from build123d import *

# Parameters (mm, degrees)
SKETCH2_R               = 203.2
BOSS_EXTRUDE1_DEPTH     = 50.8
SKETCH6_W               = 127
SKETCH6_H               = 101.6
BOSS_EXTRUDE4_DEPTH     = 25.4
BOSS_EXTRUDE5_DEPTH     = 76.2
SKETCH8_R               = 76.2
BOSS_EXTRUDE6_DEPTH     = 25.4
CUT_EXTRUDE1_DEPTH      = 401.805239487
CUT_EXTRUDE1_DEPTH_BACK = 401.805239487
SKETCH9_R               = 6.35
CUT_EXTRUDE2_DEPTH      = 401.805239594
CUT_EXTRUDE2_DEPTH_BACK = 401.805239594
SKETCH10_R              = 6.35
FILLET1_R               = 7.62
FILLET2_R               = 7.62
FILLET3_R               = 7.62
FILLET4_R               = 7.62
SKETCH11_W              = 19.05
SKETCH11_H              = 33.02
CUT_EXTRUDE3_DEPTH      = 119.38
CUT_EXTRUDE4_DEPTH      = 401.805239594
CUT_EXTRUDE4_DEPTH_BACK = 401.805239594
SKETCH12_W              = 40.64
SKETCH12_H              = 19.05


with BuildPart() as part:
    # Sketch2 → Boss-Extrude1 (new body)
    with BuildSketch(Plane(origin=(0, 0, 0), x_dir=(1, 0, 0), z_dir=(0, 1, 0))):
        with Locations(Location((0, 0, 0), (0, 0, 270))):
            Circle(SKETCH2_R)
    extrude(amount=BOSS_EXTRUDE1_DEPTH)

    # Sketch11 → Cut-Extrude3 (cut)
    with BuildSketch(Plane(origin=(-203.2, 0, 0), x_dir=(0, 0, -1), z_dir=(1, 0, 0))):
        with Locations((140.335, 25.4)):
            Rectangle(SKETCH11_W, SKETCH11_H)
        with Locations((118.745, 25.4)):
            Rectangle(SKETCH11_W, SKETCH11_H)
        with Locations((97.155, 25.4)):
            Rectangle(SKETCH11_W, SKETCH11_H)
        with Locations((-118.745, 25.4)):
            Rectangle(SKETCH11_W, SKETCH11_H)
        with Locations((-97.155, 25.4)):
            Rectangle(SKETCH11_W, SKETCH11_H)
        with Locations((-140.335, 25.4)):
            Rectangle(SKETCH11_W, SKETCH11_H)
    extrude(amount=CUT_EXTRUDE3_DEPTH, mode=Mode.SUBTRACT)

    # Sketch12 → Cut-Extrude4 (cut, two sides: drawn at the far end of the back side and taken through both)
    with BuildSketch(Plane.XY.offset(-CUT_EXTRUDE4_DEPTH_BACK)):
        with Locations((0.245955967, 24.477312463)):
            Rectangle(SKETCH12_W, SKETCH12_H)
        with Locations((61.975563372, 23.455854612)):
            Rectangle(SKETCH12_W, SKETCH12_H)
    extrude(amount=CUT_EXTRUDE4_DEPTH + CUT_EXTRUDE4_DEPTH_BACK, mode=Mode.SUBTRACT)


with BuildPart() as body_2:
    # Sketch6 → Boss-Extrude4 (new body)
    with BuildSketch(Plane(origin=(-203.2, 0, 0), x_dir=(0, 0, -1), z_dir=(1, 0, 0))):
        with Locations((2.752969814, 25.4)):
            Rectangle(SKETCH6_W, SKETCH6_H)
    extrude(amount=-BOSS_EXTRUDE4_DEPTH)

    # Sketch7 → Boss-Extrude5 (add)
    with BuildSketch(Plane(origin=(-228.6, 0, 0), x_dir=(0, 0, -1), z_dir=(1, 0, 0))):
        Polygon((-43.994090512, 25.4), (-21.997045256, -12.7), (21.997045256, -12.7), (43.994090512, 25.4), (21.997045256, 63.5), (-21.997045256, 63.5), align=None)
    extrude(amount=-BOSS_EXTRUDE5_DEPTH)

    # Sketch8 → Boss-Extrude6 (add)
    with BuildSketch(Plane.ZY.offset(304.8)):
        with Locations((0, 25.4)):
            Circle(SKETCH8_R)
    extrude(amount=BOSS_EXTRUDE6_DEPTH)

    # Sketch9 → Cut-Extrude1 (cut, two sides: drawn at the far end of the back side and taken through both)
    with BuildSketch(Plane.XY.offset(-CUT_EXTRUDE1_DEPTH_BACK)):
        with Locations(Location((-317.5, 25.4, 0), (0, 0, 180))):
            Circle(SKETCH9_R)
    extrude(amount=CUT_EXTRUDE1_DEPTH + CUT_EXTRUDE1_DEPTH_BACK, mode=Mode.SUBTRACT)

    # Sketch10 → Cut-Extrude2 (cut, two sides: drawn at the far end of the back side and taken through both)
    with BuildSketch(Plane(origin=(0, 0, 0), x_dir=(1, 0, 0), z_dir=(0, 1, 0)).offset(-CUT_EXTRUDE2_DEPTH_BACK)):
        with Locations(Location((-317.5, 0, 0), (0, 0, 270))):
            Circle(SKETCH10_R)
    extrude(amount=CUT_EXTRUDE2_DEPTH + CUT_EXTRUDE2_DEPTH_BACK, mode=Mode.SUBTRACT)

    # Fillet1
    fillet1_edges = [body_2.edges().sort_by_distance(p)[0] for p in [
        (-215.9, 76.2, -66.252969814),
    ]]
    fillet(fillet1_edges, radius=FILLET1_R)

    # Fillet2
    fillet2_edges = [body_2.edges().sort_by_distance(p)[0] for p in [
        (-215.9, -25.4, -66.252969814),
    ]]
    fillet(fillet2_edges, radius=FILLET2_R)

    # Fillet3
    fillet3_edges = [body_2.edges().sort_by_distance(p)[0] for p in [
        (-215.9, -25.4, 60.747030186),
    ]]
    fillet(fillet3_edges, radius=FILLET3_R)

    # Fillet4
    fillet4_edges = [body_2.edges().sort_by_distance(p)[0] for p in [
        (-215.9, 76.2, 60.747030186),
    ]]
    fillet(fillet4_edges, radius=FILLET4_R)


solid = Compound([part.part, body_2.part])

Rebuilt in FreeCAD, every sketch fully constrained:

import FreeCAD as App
import Part
import Sketcher
Q = App.Units.Quantity


def edges_at(feature, points):
    """Names of the edges that pass closest to the given points."""
    edges = feature.Shape.Edges
    near = lambda p: min(range(len(edges)), key=lambda i: edges[i].distToShape(Part.Vertex(*p))[0])
    return sorted({f"Edge{near(p) + 1}" for p in points})

doc = App.newDocument("Part")
body = doc.addObject("PartDesign::Body", "Body")

sketch1 = body.newObject("Sketcher::SketchObject", "Sketch")
sketch1.AttachmentSupport = (doc.getObject("XZ_Plane"), [""])
sketch1.MapMode = "FlatFace"
sketch1.addGeometry(Part.Circle(App.Vector(0, 0, 0), App.Vector(0, 0, 1), 203), False)
sketch1.addConstraint(Sketcher.Constraint("Coincident", 0, 3, -1, 1))
sketch1.addConstraint(Sketcher.Constraint("Diameter", 0, Q("16 in")))
pad1 = body.newObject("PartDesign::Pad", "Pad")
pad1.Profile = sketch1
pad1.Length = Q("2 in")
pad1.Reversed = True

sketch2 = body.newObject("Sketcher::SketchObject", "Sketch001")
sketch2.AttachmentSupport = (doc.getObject("YZ_Plane"), [""])
sketch2.MapMode = "FlatFace"
sketch2.AttachmentOffset = App.Placement(App.Vector(0, 0, -8 * 25.4), App.Rotation())
sketch2.addGeometry(Part.LineSegment(App.Vector(42, -131, 0), App.Vector(9, -131, 0)), False)
sketch2.addGeometry(Part.LineSegment(App.Vector(9, -131, 0), App.Vector(9, -150, 0)), False)
sketch2.addGeometry(Part.LineSegment(App.Vector(9, -150, 0), App.Vector(42, -150, 0)), False)
sketch2.addGeometry(Part.LineSegment(App.Vector(42, -150, 0), App.Vector(42, -131, 0)), False)
sketch2.addGeometry(Part.LineSegment(App.Vector(42, -109, 0), App.Vector(9, -109, 0)), False)
sketch2.addGeometry(Part.LineSegment(App.Vector(9, -109, 0), App.Vector(9, -128, 0)), False)
sketch2.addGeometry(Part.LineSegment(App.Vector(9, -128, 0), App.Vector(42, -128, 0)), False)
sketch2.addGeometry(Part.LineSegment(App.Vector(42, -128, 0), App.Vector(42, -109, 0)), False)
sketch2.addGeometry(Part.LineSegment(App.Vector(42, -88, 0), App.Vector(9, -88, 0)), False)
sketch2.addGeometry(Part.LineSegment(App.Vector(9, -88, 0), App.Vector(9, -107, 0)), False)
sketch2.addGeometry(Part.LineSegment(App.Vector(9, -107, 0), App.Vector(42, -107, 0)), False)
sketch2.addGeometry(Part.LineSegment(App.Vector(42, -107, 0), App.Vector(42, -88, 0)), False)
sketch2.addGeometry(Part.LineSegment(App.Vector(42, 128, 0), App.Vector(9, 128, 0)), False)
sketch2.addGeometry(Part.LineSegment(App.Vector(9, 128, 0), App.Vector(9, 109, 0)), False)
sketch2.addGeometry(Part.LineSegment(App.Vector(9, 109, 0), App.Vector(42, 109, 0)), False)
sketch2.addGeometry(Part.LineSegment(App.Vector(42, 109, 0), App.Vector(42, 128, 0)), False)
sketch2.addGeometry(Part.LineSegment(App.Vector(42, 107, 0), App.Vector(9, 107, 0)), False)
sketch2.addGeometry(Part.LineSegment(App.Vector(9, 107, 0), App.Vector(9, 88, 0)), False)
sketch2.addGeometry(Part.LineSegment(App.Vector(9, 88, 0), App.Vector(42, 88, 0)), False)
sketch2.addGeometry(Part.LineSegment(App.Vector(42, 88, 0), App.Vector(42, 107, 0)), False)
sketch2.addGeometry(Part.LineSegment(App.Vector(42, 150, 0), App.Vector(9, 150, 0)), False)
sketch2.addGeometry(Part.LineSegment(App.Vector(9, 150, 0), App.Vector(9, 131, 0)), False)
sketch2.addGeometry(Part.LineSegment(App.Vector(9, 131, 0), App.Vector(42, 131, 0)), False)
sketch2.addGeometry(Part.LineSegment(App.Vector(42, 131, 0), App.Vector(42, 150, 0)), False)
sketch2.addConstraint(Sketcher.Constraint("Coincident", 0, 2, 1, 1))
sketch2.addConstraint(Sketcher.Constraint("Coincident", 1, 2, 2, 1))
sketch2.addConstraint(Sketcher.Constraint("Coincident", 2, 2, 3, 1))
sketch2.addConstraint(Sketcher.Constraint("Coincident", 3, 2, 0, 1))
sketch2.addConstraint(Sketcher.Constraint("Coincident", 4, 2, 5, 1))
sketch2.addConstraint(Sketcher.Constraint("Coincident", 5, 2, 6, 1))
sketch2.addConstraint(Sketcher.Constraint("Coincident", 6, 2, 7, 1))
sketch2.addConstraint(Sketcher.Constraint("Coincident", 7, 2, 4, 1))
sketch2.addConstraint(Sketcher.Constraint("Coincident", 8, 2, 9, 1))
sketch2.addConstraint(Sketcher.Constraint("Coincident", 9, 2, 10, 1))
sketch2.addConstraint(Sketcher.Constraint("Coincident", 10, 2, 11, 1))
sketch2.addConstraint(Sketcher.Constraint("Coincident", 11, 2, 8, 1))
sketch2.addConstraint(Sketcher.Constraint("Coincident", 12, 2, 13, 1))
sketch2.addConstraint(Sketcher.Constraint("Coincident", 13, 2, 14, 1))
sketch2.addConstraint(Sketcher.Constraint("Coincident", 14, 2, 15, 1))
sketch2.addConstraint(Sketcher.Constraint("Coincident", 15, 2, 12, 1))
sketch2.addConstraint(Sketcher.Constraint("Coincident", 16, 2, 17, 1))
sketch2.addConstraint(Sketcher.Constraint("Coincident", 17, 2, 18, 1))
sketch2.addConstraint(Sketcher.Constraint("Coincident", 18, 2, 19, 1))
sketch2.addConstraint(Sketcher.Constraint("Coincident", 19, 2, 16, 1))
sketch2.addConstraint(Sketcher.Constraint("Coincident", 20, 2, 21, 1))
sketch2.addConstraint(Sketcher.Constraint("Coincident", 21, 2, 22, 1))
sketch2.addConstraint(Sketcher.Constraint("Coincident", 22, 2, 23, 1))
sketch2.addConstraint(Sketcher.Constraint("Coincident", 23, 2, 20, 1))
sketch2.addConstraint(Sketcher.Constraint("Horizontal", 0))
sketch2.addConstraint(Sketcher.Constraint("Vertical", 1))
sketch2.addConstraint(Sketcher.Constraint("Horizontal", 2))
sketch2.addConstraint(Sketcher.Constraint("Vertical", 3))
sketch2.addConstraint(Sketcher.Constraint("Horizontal", 4))
sketch2.addConstraint(Sketcher.Constraint("Vertical", 5))
sketch2.addConstraint(Sketcher.Constraint("Horizontal", 6))
sketch2.addConstraint(Sketcher.Constraint("Vertical", 7))
sketch2.addConstraint(Sketcher.Constraint("Horizontal", 8))
sketch2.addConstraint(Sketcher.Constraint("Vertical", 9))
sketch2.addConstraint(Sketcher.Constraint("Horizontal", 10))
sketch2.addConstraint(Sketcher.Constraint("Vertical", 11))
sketch2.addConstraint(Sketcher.Constraint("Horizontal", 12))
sketch2.addConstraint(Sketcher.Constraint("Vertical", 13))
sketch2.addConstraint(Sketcher.Constraint("Horizontal", 14))
sketch2.addConstraint(Sketcher.Constraint("Vertical", 15))
sketch2.addConstraint(Sketcher.Constraint("Horizontal", 16))
sketch2.addConstraint(Sketcher.Constraint("Vertical", 17))
sketch2.addConstraint(Sketcher.Constraint("Horizontal", 18))
sketch2.addConstraint(Sketcher.Constraint("Vertical", 19))
sketch2.addConstraint(Sketcher.Constraint("Horizontal", 20))
sketch2.addConstraint(Sketcher.Constraint("Vertical", 21))
sketch2.addConstraint(Sketcher.Constraint("Horizontal", 22))
sketch2.addConstraint(Sketcher.Constraint("Vertical", 23))
sketch2.addConstraint(Sketcher.Constraint("Symmetric", 5, 2, 12, 2, -1))
sketch2.addConstraint(Sketcher.Constraint("Symmetric", 7, 2, 14, 2, -1))
sketch2.addConstraint(Sketcher.Constraint("Symmetric", 9, 2, 16, 2, -1))
sketch2.addConstraint(Sketcher.Constraint("Symmetric", 11, 2, 18, 2, -1))
sketch2.addConstraint(Sketcher.Constraint("Symmetric", 1, 2, 20, 2, -1))
sketch2.addConstraint(Sketcher.Constraint("Symmetric", 3, 2, 22, 2, -1))
sketch2.addConstraint(Sketcher.Constraint("Vertical", 1, 2, 4, 2))
sketch2.addConstraint(Sketcher.Constraint("Vertical", 3, 2, 6, 2))
sketch2.addConstraint(Sketcher.Constraint("Vertical", 5, 2, 8, 2))
sketch2.addConstraint(Sketcher.Constraint("Vertical", 7, 2, 10, 2))
sketch2.addConstraint(Sketcher.Constraint("Equal", 3, 5))
sketch2.addConstraint(Sketcher.Constraint("Equal", 7, 9))
sketch2.addConstraint(Sketcher.Constraint("DistanceX", 0, 2, 0, 1, Q("1.3 in")))
sketch2.addConstraint(Sketcher.Constraint("DistanceY", 1, 2, 1, 1, Q("0.75 in")))
sketch2.addConstraint(Sketcher.Constraint("DistanceY", 1, 2, -1, 1, Q("5.9 in")))
sketch2.addConstraint(Sketcher.Constraint("DistanceY", 4, 2, -1, 1, Q("4.3 in")))
sketch2.addConstraint(Sketcher.Constraint("DistanceY", 9, 2, -1, 1, Q("4.2 in")))
sketch2.addConstraint(Sketcher.Constraint("DistanceX", -1, 1, 0, 2, Q("0.35 in")))
pocket1 = body.newObject("PartDesign::Pocket", "Pocket")
pocket1.Profile = sketch2
pocket1.Length = Q("4.7 in")
pocket1.Reversed = True

sketch3 = body.newObject("Sketcher::SketchObject", "Sketch002")
sketch3.AttachmentSupport = (doc.getObject("XY_Plane"), [""])
sketch3.MapMode = "FlatFace"
sketch3.addGeometry(Part.LineSegment(App.Vector(-20, 34, 0), App.Vector(-20, 15, 0)), False)
sketch3.addGeometry(Part.LineSegment(App.Vector(-20, 15, 0), App.Vector(21, 15, 0)), False)
sketch3.addGeometry(Part.LineSegment(App.Vector(21, 15, 0), App.Vector(21, 34, 0)), False)
sketch3.addGeometry(Part.LineSegment(App.Vector(21, 34, 0), App.Vector(-20, 34, 0)), False)
sketch3.addGeometry(Part.LineSegment(App.Vector(42, 33, 0), App.Vector(42, 14, 0)), False)
sketch3.addGeometry(Part.LineSegment(App.Vector(42, 14, 0), App.Vector(82, 14, 0)), False)
sketch3.addGeometry(Part.LineSegment(App.Vector(82, 14, 0), App.Vector(82, 33, 0)), False)
sketch3.addGeometry(Part.LineSegment(App.Vector(82, 33, 0), App.Vector(42, 33, 0)), False)
sketch3.addConstraint(Sketcher.Constraint("Coincident", 0, 2, 1, 1))
sketch3.addConstraint(Sketcher.Constraint("Coincident", 1, 2, 2, 1))
sketch3.addConstraint(Sketcher.Constraint("Coincident", 2, 2, 3, 1))
sketch3.addConstraint(Sketcher.Constraint("Coincident", 3, 2, 0, 1))
sketch3.addConstraint(Sketcher.Constraint("Coincident", 4, 2, 5, 1))
sketch3.addConstraint(Sketcher.Constraint("Coincident", 5, 2, 6, 1))
sketch3.addConstraint(Sketcher.Constraint("Coincident", 6, 2, 7, 1))
sketch3.addConstraint(Sketcher.Constraint("Coincident", 7, 2, 4, 1))
sketch3.addConstraint(Sketcher.Constraint("Vertical", 0))
sketch3.addConstraint(Sketcher.Constraint("Horizontal", 1))
sketch3.addConstraint(Sketcher.Constraint("Vertical", 2))
sketch3.addConstraint(Sketcher.Constraint("Horizontal", 3))
sketch3.addConstraint(Sketcher.Constraint("Vertical", 4))
sketch3.addConstraint(Sketcher.Constraint("Horizontal", 5))
sketch3.addConstraint(Sketcher.Constraint("Vertical", 6))
sketch3.addConstraint(Sketcher.Constraint("Horizontal", 7))
sketch3.addConstraint(Sketcher.Constraint("Equal", 3, 5))
sketch3.addConstraint(Sketcher.Constraint("Equal", 2, 4))
sketch3.addConstraint(Sketcher.Constraint("DistanceX", 1, 1, 1, 2, Q("1.6 in")))
sketch3.addConstraint(Sketcher.Constraint("DistanceY", 0, 2, 0, 1, Q("0.75 in")))
sketch3.addConstraint(Sketcher.Constraint("DistanceX", 0, 2, -1, 1, Q("20.074044 mm")))
sketch3.addConstraint(Sketcher.Constraint("DistanceY", -1, 1, 0, 2, Q("14.952312 mm")))
sketch3.addConstraint(Sketcher.Constraint("DistanceX", -1, 1, 4, 2, Q("41.655563 mm")))
sketch3.addConstraint(Sketcher.Constraint("DistanceY", -1, 1, 4, 2, Q("13.930855 mm")))
pocket2 = body.newObject("PartDesign::Pocket", "Pocket001")
pocket2.Profile = sketch3
pocket2.Type = "ThroughAll"
pocket2.Midplane = True
body2 = doc.addObject("PartDesign::Body", "Body001")

sketch4 = body2.newObject("Sketcher::SketchObject", "Sketch003")
sketch4.AttachmentSupport = (doc.getObject("YZ_Plane001"), [""])
sketch4.MapMode = "FlatFace"
sketch4.AttachmentOffset = App.Placement(App.Vector(0, 0, -8 * 25.4), App.Rotation())
sketch4.addGeometry(Part.LineSegment(App.Vector(76, 61, 0), App.Vector(-25, 61, 0)), False)
sketch4.addGeometry(Part.LineSegment(App.Vector(-25, 61, 0), App.Vector(-25, -66, 0)), False)
sketch4.addGeometry(Part.LineSegment(App.Vector(-25, -66, 0), App.Vector(76, -66, 0)), False)
sketch4.addGeometry(Part.LineSegment(App.Vector(76, -66, 0), App.Vector(76, 61, 0)), False)
sketch4.addConstraint(Sketcher.Constraint("Coincident", 0, 2, 1, 1))
sketch4.addConstraint(Sketcher.Constraint("Coincident", 1, 2, 2, 1))
sketch4.addConstraint(Sketcher.Constraint("Coincident", 2, 2, 3, 1))
sketch4.addConstraint(Sketcher.Constraint("Coincident", 3, 2, 0, 1))
sketch4.addConstraint(Sketcher.Constraint("Horizontal", 0))
sketch4.addConstraint(Sketcher.Constraint("Vertical", 1))
sketch4.addConstraint(Sketcher.Constraint("Horizontal", 2))
sketch4.addConstraint(Sketcher.Constraint("Vertical", 3))
sketch4.addConstraint(Sketcher.Constraint("DistanceX", 0, 2, 0, 1, Q("4 in")))
sketch4.addConstraint(Sketcher.Constraint("DistanceY", 1, 2, 1, 1, Q("5 in")))
sketch4.addConstraint(Sketcher.Constraint("DistanceX", 0, 2, -1, 1, Q("1 in")))
sketch4.addConstraint(Sketcher.Constraint("DistanceY", -1, 1, 0, 2, Q("60.74703 mm")))
pad2 = body2.newObject("PartDesign::Pad", "Pad001")
pad2.Profile = sketch4
pad2.Length = Q("1 in")
pad2.Reversed = True

sketch5 = body2.newObject("Sketcher::SketchObject", "Sketch004")
sketch5.AttachmentSupport = (doc.getObject("YZ_Plane001"), [""])
sketch5.MapMode = "FlatFace"
sketch5.AttachmentOffset = App.Placement(App.Vector(0, 0, -9 * 25.4), App.Rotation())
sketch5.addGeometry(Part.LineSegment(App.Vector(25, 44, 0), App.Vector(-13, 22, 0)), False)
sketch5.addGeometry(Part.LineSegment(App.Vector(-13, 22, 0), App.Vector(-13, -22, 0)), False)
sketch5.addGeometry(Part.LineSegment(App.Vector(-13, -22, 0), App.Vector(25, -44, 0)), False)
sketch5.addGeometry(Part.LineSegment(App.Vector(25, -44, 0), App.Vector(64, -22, 0)), False)
sketch5.addGeometry(Part.LineSegment(App.Vector(64, -22, 0), App.Vector(64, 22, 0)), False)
sketch5.addGeometry(Part.LineSegment(App.Vector(64, 22, 0), App.Vector(25, 44, 0)), False)
sketch5.addConstraint(Sketcher.Constraint("Coincident", 0, 2, 1, 1))
sketch5.addConstraint(Sketcher.Constraint("Coincident", 1, 2, 2, 1))
sketch5.addConstraint(Sketcher.Constraint("Coincident", 2, 2, 3, 1))
sketch5.addConstraint(Sketcher.Constraint("Coincident", 3, 2, 4, 1))
sketch5.addConstraint(Sketcher.Constraint("Coincident", 4, 2, 5, 1))
sketch5.addConstraint(Sketcher.Constraint("Coincident", 5, 2, 0, 1))
sketch5.addConstraint(Sketcher.Constraint("Vertical", 1))
sketch5.addConstraint(Sketcher.Constraint("Vertical", 4))
sketch5.addConstraint(Sketcher.Constraint("Symmetric", 2, 2, 5, 2, -1))
sketch5.addConstraint(Sketcher.Constraint("Parallel", 0, 3))
sketch5.addConstraint(Sketcher.Constraint("Parallel", 2, 5))
sketch5.addConstraint(Sketcher.Constraint("Horizontal", 1, 2, 3, 2))
sketch5.addConstraint(Sketcher.Constraint("Horizontal", 0, 2, 4, 2))
sketch5.addConstraint(Sketcher.Constraint("DistanceX", -1, 1, 2, 2, Q("1 in")))
sketch5.addConstraint(Sketcher.Constraint("Angle", 0, Q("-150 deg")))
sketch5.addConstraint(Sketcher.Constraint("DistanceX", 1, 2, 3, 2, Q("3 in")))
sketch5.addConstraint(Sketcher.Constraint("DistanceY", 1, 2, 1, 1, Q("43.994091 mm")))
pad3 = body2.newObject("PartDesign::Pad", "Pad002")
pad3.Profile = sketch5
pad3.Length = Q("3 in")
pad3.Reversed = True

sketch6 = body2.newObject("Sketcher::SketchObject", "Sketch005")
sketch6.AttachmentSupport = (doc.getObject("YZ_Plane001"), [""])
sketch6.MapMode = "FlatFace"
sketch6.AttachmentOffset = App.Placement(App.Vector(0, 0, -12 * 25.4), App.Rotation())
sketch6.addGeometry(Part.Circle(App.Vector(25, 0, 0), App.Vector(0, 0, 1), 76), False)
sketch6.addConstraint(Sketcher.Constraint("PointOnObject", 0, 3, -1))
sketch6.addConstraint(Sketcher.Constraint("Diameter", 0, Q("6 in")))
sketch6.addConstraint(Sketcher.Constraint("DistanceX", -1, 1, 0, 3, Q("1 in")))
pad4 = body2.newObject("PartDesign::Pad", "Pad003")
pad4.Profile = sketch6
pad4.Length = Q("1 in")
pad4.Reversed = True

sketch7 = body2.newObject("Sketcher::SketchObject", "Sketch006")
sketch7.AttachmentSupport = (doc.getObject("XY_Plane001"), [""])
sketch7.MapMode = "FlatFace"
sketch7.addGeometry(Part.Circle(App.Vector(-318, 25, 0), App.Vector(0, 0, 1), 6), False)
sketch7.addConstraint(Sketcher.Constraint("Diameter", 0, Q("0.5 in")))
sketch7.addConstraint(Sketcher.Constraint("DistanceY", -1, 1, 0, 3, Q("1 in")))
sketch7.addConstraint(Sketcher.Constraint("DistanceX", 0, 3, -1, 1, Q("12.5 in")))
pocket3 = body2.newObject("PartDesign::Pocket", "Pocket002")
pocket3.Profile = sketch7
pocket3.Type = "ThroughAll"
pocket3.Midplane = True

sketch8 = body2.newObject("Sketcher::SketchObject", "Sketch007")
sketch8.AttachmentSupport = (doc.getObject("XZ_Plane001"), [""])
sketch8.MapMode = "FlatFace"
sketch8.addGeometry(Part.Circle(App.Vector(-318, 0, 0), App.Vector(0, 0, 1), 6), False)
sketch8.addConstraint(Sketcher.Constraint("PointOnObject", 0, 3, -1))
sketch8.addConstraint(Sketcher.Constraint("Diameter", 0, Q("0.5 in")))
sketch8.addConstraint(Sketcher.Constraint("DistanceX", 0, 3, -1, 1, Q("12.5 in")))
pocket4 = body2.newObject("PartDesign::Pocket", "Pocket003")
pocket4.Profile = sketch8
pocket4.Type = "ThroughAll"
pocket4.Midplane = True
doc.recompute()

fillet = body2.newObject("PartDesign::Fillet", "Fillet")
fillet.Base = (pocket4, edges_at(pocket4, [(-215.9, 76.2, -66.253)]))
fillet.Radius = Q("0.3 in")
doc.recompute()

fillet2 = body2.newObject("PartDesign::Fillet", "Fillet001")
fillet2.Base = (fillet, edges_at(fillet, [(-215.9, -25.4, -66.253)]))
fillet2.Radius = Q("0.3 in")
doc.recompute()

fillet3 = body2.newObject("PartDesign::Fillet", "Fillet002")
fillet3.Base = (fillet2, edges_at(fillet2, [(-215.9, -25.4, 60.747)]))
fillet3.Radius = Q("0.3 in")
doc.recompute()

fillet4 = body2.newObject("PartDesign::Fillet", "Fillet003")
fillet4.Base = (fillet3, edges_at(fillet3, [(-215.9, 76.2, 60.747)]))
fillet4.Radius = Q("0.3 in")

doc.recompute()
